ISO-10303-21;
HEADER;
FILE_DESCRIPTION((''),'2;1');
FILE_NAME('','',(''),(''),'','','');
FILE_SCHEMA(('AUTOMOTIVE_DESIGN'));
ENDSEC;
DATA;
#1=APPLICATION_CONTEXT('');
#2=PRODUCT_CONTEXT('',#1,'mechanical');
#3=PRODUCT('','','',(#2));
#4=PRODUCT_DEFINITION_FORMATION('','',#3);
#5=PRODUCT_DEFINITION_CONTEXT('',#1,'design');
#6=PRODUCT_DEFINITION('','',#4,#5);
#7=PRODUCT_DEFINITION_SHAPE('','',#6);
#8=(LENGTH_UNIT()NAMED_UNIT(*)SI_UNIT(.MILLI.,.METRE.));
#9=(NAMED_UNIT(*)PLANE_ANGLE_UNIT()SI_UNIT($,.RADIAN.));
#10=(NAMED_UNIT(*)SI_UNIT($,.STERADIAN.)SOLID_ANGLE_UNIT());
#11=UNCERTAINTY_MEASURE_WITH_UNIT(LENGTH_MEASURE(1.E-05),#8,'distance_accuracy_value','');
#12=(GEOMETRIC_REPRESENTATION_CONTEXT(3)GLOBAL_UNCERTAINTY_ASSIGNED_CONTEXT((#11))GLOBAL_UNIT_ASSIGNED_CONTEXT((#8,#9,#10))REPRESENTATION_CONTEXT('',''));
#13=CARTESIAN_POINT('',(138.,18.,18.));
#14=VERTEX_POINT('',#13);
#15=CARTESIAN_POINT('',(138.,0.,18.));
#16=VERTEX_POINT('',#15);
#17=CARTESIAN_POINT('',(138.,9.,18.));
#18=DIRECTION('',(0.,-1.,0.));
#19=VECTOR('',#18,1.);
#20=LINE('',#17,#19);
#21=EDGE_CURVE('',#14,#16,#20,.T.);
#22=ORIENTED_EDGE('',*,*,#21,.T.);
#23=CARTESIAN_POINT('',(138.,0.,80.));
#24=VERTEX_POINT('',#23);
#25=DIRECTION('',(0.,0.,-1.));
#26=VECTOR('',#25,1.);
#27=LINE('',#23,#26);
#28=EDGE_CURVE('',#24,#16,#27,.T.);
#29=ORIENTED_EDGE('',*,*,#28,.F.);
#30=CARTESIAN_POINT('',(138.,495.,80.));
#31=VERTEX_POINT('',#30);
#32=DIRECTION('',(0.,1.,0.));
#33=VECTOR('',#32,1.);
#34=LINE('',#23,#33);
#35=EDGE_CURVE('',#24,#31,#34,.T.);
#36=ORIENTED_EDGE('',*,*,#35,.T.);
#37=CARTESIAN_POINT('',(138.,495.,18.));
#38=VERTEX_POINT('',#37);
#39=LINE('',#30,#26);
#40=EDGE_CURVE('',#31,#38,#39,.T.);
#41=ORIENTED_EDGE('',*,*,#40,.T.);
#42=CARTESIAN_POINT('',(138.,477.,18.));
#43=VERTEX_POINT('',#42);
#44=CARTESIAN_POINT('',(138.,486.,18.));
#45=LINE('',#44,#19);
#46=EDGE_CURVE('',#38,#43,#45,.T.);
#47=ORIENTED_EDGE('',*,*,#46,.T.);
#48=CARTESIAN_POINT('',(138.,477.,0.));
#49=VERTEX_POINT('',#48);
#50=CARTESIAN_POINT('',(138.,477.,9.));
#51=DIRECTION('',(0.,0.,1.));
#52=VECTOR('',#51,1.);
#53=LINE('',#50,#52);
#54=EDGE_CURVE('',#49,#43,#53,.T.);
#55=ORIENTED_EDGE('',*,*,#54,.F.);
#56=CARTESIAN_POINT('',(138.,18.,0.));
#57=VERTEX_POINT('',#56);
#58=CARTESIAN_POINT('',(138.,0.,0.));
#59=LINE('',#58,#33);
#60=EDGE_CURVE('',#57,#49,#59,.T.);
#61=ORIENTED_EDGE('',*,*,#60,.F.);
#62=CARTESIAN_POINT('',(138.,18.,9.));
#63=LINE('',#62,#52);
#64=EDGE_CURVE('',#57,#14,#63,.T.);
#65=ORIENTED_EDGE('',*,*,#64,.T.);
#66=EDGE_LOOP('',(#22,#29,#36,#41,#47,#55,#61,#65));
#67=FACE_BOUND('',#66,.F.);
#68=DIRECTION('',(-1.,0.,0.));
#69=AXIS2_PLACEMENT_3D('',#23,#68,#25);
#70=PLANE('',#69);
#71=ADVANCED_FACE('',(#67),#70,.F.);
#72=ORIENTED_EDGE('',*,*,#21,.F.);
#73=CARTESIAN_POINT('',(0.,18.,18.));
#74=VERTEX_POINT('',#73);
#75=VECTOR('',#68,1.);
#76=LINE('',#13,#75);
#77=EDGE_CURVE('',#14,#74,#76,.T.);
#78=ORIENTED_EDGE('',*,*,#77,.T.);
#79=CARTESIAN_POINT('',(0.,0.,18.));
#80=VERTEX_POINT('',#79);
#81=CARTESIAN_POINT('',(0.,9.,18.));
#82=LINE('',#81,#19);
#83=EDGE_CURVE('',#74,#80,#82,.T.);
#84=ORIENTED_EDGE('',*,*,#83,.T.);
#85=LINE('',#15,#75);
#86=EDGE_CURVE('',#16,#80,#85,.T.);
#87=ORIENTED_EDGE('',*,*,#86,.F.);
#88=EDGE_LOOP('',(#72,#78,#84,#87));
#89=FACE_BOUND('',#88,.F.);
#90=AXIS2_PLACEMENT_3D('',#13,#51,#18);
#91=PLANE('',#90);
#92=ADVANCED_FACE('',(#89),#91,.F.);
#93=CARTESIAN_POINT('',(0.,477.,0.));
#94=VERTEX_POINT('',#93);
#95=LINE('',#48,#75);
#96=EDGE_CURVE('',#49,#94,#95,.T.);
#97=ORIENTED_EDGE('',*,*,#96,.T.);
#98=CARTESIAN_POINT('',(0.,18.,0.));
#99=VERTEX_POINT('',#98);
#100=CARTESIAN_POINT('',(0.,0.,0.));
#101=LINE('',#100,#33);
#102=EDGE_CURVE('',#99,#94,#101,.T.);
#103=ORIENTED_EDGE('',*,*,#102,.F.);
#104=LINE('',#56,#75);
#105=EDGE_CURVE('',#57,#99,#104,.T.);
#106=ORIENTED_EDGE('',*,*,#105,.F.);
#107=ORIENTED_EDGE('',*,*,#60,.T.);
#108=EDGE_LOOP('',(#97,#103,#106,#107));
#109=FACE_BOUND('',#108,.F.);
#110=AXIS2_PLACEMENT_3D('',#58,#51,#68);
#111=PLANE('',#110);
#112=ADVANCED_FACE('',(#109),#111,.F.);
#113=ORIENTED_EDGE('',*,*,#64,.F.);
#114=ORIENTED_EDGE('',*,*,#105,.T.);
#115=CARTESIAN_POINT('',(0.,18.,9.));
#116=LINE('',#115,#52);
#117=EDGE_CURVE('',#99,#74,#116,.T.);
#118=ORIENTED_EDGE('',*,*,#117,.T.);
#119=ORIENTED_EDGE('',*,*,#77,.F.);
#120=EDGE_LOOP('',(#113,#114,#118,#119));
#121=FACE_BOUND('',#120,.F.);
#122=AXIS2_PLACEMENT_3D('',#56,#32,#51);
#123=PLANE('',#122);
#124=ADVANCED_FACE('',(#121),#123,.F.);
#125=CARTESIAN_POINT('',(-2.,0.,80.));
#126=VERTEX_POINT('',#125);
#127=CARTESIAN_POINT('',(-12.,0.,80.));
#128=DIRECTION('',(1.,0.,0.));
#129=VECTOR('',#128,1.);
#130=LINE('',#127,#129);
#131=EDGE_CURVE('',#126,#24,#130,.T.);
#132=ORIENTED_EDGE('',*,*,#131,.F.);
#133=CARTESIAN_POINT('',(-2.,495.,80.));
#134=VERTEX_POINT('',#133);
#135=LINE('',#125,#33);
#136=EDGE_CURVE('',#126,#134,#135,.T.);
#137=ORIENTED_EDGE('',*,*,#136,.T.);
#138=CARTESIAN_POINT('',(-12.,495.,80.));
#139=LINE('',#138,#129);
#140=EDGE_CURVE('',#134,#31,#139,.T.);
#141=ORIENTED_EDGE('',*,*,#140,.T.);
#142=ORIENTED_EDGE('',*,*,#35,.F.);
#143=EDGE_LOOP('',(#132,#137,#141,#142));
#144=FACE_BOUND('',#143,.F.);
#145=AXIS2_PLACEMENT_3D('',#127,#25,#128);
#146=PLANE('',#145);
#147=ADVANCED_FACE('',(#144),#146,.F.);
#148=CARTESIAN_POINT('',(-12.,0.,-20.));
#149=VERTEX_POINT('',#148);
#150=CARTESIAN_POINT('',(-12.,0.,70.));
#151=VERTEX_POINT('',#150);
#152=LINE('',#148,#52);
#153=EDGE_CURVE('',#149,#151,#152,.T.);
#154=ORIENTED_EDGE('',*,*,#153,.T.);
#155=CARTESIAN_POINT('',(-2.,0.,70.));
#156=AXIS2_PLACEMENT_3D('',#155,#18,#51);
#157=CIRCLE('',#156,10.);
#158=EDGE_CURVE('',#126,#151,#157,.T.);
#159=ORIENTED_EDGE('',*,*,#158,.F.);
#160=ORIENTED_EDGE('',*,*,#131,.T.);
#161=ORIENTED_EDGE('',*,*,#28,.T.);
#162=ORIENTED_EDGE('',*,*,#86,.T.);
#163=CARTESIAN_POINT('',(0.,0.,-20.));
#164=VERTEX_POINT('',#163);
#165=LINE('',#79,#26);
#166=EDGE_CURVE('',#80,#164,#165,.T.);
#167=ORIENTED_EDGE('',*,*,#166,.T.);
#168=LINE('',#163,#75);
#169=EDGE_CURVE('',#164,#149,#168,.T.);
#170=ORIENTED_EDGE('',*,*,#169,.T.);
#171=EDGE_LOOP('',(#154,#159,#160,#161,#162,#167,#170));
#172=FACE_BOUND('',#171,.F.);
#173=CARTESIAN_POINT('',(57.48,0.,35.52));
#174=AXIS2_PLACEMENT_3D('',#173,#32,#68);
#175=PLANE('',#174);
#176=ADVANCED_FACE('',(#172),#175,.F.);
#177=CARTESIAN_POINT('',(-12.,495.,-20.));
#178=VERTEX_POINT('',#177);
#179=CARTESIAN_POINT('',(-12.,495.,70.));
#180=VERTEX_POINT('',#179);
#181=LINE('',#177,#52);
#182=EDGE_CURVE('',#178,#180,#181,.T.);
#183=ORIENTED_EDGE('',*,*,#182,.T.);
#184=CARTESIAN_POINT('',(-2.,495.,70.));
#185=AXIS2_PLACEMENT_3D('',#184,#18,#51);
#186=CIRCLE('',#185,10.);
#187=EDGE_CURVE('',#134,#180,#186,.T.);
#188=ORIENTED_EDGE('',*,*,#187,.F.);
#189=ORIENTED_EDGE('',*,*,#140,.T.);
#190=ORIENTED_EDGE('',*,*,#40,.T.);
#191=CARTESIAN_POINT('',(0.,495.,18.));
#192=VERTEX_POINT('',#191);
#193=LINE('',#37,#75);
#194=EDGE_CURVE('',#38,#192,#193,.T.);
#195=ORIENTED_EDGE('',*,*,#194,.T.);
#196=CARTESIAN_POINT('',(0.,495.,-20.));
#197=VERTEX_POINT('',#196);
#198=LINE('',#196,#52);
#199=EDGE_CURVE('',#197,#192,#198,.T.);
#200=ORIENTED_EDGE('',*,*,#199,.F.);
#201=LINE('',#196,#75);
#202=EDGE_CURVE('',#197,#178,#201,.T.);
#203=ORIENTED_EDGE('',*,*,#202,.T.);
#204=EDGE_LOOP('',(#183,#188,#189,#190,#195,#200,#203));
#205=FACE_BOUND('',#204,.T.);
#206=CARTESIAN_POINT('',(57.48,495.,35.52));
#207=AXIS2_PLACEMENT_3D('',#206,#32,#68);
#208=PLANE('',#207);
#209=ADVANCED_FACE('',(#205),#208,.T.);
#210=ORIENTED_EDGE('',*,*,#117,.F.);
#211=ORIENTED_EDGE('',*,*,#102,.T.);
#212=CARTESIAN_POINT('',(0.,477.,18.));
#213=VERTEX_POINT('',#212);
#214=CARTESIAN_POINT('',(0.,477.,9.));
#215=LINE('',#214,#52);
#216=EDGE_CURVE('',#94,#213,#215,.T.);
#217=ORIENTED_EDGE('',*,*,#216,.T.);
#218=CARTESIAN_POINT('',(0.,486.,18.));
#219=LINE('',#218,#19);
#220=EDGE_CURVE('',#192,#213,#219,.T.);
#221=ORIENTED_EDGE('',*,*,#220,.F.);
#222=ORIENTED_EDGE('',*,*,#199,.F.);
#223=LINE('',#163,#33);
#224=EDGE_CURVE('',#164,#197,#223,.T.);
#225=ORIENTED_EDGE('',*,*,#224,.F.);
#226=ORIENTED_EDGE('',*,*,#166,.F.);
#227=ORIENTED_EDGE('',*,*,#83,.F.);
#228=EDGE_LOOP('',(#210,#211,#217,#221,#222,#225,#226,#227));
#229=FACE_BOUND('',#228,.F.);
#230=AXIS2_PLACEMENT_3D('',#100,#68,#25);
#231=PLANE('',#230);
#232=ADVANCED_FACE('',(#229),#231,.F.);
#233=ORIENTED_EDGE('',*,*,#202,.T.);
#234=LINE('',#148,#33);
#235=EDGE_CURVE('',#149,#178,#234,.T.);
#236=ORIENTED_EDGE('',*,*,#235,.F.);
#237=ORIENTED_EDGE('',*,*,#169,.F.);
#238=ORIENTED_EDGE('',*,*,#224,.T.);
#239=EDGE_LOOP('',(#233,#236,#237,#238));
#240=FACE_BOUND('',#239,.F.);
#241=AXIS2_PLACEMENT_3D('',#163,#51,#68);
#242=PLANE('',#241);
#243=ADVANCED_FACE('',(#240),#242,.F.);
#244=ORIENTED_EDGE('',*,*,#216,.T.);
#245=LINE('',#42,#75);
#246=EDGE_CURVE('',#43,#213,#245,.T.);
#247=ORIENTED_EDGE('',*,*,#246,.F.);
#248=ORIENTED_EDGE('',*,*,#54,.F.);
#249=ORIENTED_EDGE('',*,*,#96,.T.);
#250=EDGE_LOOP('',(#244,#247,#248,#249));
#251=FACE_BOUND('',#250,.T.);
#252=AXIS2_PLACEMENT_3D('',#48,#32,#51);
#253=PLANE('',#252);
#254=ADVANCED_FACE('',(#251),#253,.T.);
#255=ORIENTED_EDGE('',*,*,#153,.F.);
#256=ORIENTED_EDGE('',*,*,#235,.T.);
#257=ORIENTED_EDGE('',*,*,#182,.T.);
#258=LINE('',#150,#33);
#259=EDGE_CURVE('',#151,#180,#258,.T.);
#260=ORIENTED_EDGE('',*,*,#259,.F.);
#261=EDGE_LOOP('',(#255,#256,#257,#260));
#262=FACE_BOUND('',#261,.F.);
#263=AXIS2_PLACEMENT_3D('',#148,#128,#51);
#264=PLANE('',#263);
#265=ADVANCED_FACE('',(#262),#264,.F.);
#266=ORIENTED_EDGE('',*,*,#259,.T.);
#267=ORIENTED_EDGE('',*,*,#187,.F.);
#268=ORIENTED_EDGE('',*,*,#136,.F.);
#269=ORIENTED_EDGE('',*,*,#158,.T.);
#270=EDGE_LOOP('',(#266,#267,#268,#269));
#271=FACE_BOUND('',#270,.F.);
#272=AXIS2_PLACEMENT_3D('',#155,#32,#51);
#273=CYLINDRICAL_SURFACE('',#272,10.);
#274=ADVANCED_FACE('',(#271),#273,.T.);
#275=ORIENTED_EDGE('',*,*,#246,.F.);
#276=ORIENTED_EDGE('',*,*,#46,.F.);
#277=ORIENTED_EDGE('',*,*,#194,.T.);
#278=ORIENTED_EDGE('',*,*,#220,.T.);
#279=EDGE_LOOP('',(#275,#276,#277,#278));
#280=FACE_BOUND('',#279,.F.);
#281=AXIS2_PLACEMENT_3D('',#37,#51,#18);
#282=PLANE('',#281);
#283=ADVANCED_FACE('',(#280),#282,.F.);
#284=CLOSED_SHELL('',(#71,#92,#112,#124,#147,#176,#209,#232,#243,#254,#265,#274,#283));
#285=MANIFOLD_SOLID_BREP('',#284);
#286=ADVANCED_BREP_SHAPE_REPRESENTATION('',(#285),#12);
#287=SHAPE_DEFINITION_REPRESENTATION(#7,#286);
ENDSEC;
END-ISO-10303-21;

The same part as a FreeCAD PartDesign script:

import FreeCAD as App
import Part
import Sketcher


def edges_at(feature, points):
    """Names of the edges that pass closest to the given points."""
    edges = feature.Shape.Edges
    near = lambda p: min(range(len(edges)), key=lambda i: edges[i].distToShape(Part.Vertex(*p))[0])
    return sorted({f"Edge{near(p) + 1}" for p in points})


def add_polygon(sketch, points):
    """Adds a closed chain of lines whose ends are joined by coincident constraints."""
    first, n = sketch.GeometryCount, len(points)
    for a, b in zip(points, points[1:] + points[:1]):
        sketch.addGeometry(Part.LineSegment(App.Vector(*a, 0), App.Vector(*b, 0)), False)
    for i in range(n):
        sketch.addConstraint(Sketcher.Constraint("Coincident", first + i, 2, first + (i + 1) % n, 1))

doc = App.newDocument("Part")
body = doc.addObject("PartDesign::Body", "Body")

sketch1 = body.newObject("Sketcher::SketchObject", "Sketch")
sketch1.AttachmentSupport = (doc.getObject("XZ_Plane"), [""])
sketch1.MapMode = "FlatFace"
add_polygon(sketch1, [(0, 0), (138, 0), (138, 80), (-12, 80), (-12, -20), (0, -20)])
sketch1.addConstraint([
    Sketcher.Constraint("Horizontal", 0),
    Sketcher.Constraint("Vertical", 1),
    Sketcher.Constraint("Horizontal", 2),
    Sketcher.Constraint("Vertical", 3),
    Sketcher.Constraint("Horizontal", 4),
    Sketcher.Constraint("Vertical", 5),
    Sketcher.Constraint("Coincident", 5, 2, -1, 1),
    Sketcher.Constraint("DistanceX", 0, 1, 0, 2, 138.0),
    Sketcher.Constraint("DistanceX", 2, 2, 2, 1, 150.0),
    Sketcher.Constraint("DistanceY", 1, 1, 1, 2, 80.0),
    Sketcher.Constraint("DistanceY", 3, 2, 3, 1, 100.0),
])
pad1 = body.newObject("PartDesign::Pad", "Pad")
pad1.Profile = sketch1
pad1.Length = 495
pad1.Reversed = True

sketch2 = body.newObject("Sketcher::SketchObject", "Sketch001")
sketch2.AttachmentSupport = (doc.getObject("YZ_Plane"), [""])
sketch2.MapMode = "FlatFace"
sketch2.AttachmentOffset = App.Placement(App.Vector(0, 0, 138), App.Rotation())
add_polygon(sketch2, [(0, 0), (18, 0), (18, 18), (0, 18)])
add_polygon(sketch2, [(477, 0), (495, 0), (495, 18), (477, 18)])
sketch2.addConstraint([
    Sketcher.Constraint("Horizontal", 0),
    Sketcher.Constraint("Vertical", 1),
    Sketcher.Constraint("Horizontal", 2),
    Sketcher.Constraint("Vertical", 3),
    Sketcher.Constraint("Horizontal", 4),
    Sketcher.Constraint("Vertical", 5),
    Sketcher.Constraint("Horizontal", 6),
    Sketcher.Constraint("Vertical", 7),
    Sketcher.Constraint("Coincident", 3, 2, -1, 1),
    Sketcher.Constraint("PointOnObject", 4, 2, -1),
    Sketcher.Constraint("Horizontal", 2, 2, 5, 2),
    Sketcher.Constraint("Equal", 2, 4),
    Sketcher.Constraint("Equal", 6, 1),
    Sketcher.Constraint("DistanceX", 0, 1, 0, 2, 18.0),
    Sketcher.Constraint("DistanceX", -1, 1, 4, 2, 495.0),
])
pocket1 = body.newObject("PartDesign::Pocket", "Pocket")
pocket1.Profile = sketch2
pocket1.Length = 138
doc.recompute()

fillet = body.newObject("PartDesign::Fillet", "Fillet")
fillet.Base = (pocket1, edges_at(pocket1, [(-12, 247.5, 80)]))
fillet.Radius = 10

doc.recompute()
